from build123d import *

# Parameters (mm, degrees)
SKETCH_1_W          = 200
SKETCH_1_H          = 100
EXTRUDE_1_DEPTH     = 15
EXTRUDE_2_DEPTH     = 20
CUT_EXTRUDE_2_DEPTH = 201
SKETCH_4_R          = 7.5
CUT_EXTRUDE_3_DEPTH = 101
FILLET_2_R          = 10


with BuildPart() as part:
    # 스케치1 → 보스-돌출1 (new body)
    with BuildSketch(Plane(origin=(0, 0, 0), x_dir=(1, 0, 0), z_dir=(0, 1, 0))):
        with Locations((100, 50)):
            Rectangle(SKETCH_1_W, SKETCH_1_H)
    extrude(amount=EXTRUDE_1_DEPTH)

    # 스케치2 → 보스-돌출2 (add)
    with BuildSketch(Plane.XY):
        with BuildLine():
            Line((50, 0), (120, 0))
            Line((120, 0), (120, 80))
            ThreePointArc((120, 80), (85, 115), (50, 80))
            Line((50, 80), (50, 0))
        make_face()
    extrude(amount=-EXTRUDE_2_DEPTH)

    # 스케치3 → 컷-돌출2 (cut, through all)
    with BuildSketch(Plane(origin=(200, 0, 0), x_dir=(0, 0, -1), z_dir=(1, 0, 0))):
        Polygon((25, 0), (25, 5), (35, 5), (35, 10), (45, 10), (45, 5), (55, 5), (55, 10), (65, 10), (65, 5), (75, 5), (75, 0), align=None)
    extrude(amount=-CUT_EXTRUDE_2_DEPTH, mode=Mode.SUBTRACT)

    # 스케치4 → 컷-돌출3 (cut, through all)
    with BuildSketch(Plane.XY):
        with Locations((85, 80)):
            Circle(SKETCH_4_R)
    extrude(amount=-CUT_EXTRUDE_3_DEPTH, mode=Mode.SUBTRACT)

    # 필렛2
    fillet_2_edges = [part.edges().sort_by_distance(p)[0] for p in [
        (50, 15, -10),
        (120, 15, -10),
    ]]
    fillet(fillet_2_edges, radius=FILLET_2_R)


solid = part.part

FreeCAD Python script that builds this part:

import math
import FreeCAD as App
import Part
import Sketcher

V = App.Vector


def edges_at(feature, points):
    """Names of the edges that pass closest to the given points."""
    edges = feature.Shape.Edges
    near = lambda p: min(range(len(edges)), key=lambda i: edges[i].distToShape(Part.Vertex(*p))[0])
    return sorted({f"Edge{near(p) + 1}" for p in points})


def add_polygon(sketch, points):
    """Adds a closed chain of lines whose ends are joined by coincident constraints."""
    first, n = sketch.GeometryCount, len(points)
    for a, b in zip(points, points[1:] + points[:1]):
        sketch.addGeometry(Part.LineSegment(App.Vector(*a, 0), App.Vector(*b, 0)), False)
    for i in range(n):
        sketch.addConstraint(Sketcher.Constraint("Coincident", first + i, 2, first + (i + 1) % n, 1))

doc = App.newDocument("Part")
params = doc.addObject("Spreadsheet::Sheet", "Params")
for row, (alias, value) in enumerate([
    ("sketch1_width", "200 mm"),
    ("sketch1_height", "100 mm"),
    ("pad1_length", "15 mm"),
    ("sketch2_radius", "35 mm"),
    ("sketch2_height", "80 mm"),
    ("pad2_length", "20 mm"),
    ("sketch3_width", "5 mm"),
    ("sketch3_height", "50 mm"),
    ("sketch4_diameter", "15 mm"),
    ("fillet_radius", "10 mm"),
], start=1):
    params.set(f"A{row}", alias)
    params.set(f"B{row}", "=" + value)
    params.setAlias(f"B{row}", alias)

body = doc.addObject("PartDesign::Body", "Body")

sketch1 = body.newObject("Sketcher::SketchObject", "Sketch")
sketch1.AttachmentSupport = (doc.getObject("XZ_Plane"), [""])
sketch1.MapMode = "FlatFace"
add_polygon(sketch1, [(0, -100), (0, 0), (200, 0), (200, -100)])
sketch1.addConstraint([
    Sketcher.Constraint("Vertical", 0),
    Sketcher.Constraint("Horizontal", 1),
    Sketcher.Constraint("Vertical", 2),
    Sketcher.Constraint("Horizontal", 3),
    Sketcher.Constraint("Coincident", 0, 2, -1, 1),
    Sketcher.Constraint("DistanceX", 1, 1, 1, 2, 200.0),
    Sketcher.Constraint("DistanceY", 0, 1, 0, 2, 100.0),
])
sketch1.setExpression("Constraints[9]", "Params.sketch1_width")
sketch1.setExpression("Constraints[10]", "Params.sketch1_height")
pad1 = body.newObject("PartDesign::Pad", "Pad")
pad1.Profile = sketch1
pad1.setExpression("Length", "Params.pad1_length")
pad1.Reversed = True

sketch2 = body.newObject("Sketcher::SketchObject", "Sketch001")
sketch2.AttachmentSupport = (doc.getObject("XY_Plane"), [""])
sketch2.MapMode = "FlatFace"
sketch2.addGeometry([
    Part.LineSegment(V(50, 0, 0), V(120, 0, 0)),
    Part.LineSegment(V(120, 0, 0), V(120, 80, 0)),
    Part.ArcOfCircle(Part.Circle(V(85, 80, 0), V(0, 0, 1), 35), math.radians(0), math.radians(180)),
    Part.LineSegment(V(50, 80, 0), V(50, 0, 0)),
], False)
sketch2.addConstraint([
    Sketcher.Constraint("Coincident", 0, 2, 1, 1),
    Sketcher.Constraint("Tangent", 1, 2, 2, 1),
    Sketcher.Constraint("Tangent", 2, 2, 3, 1),
    Sketcher.Constraint("Coincident", 3, 2, 0, 1),
    Sketcher.Constraint("Horizontal", 0),
    Sketcher.Constraint("Vertical", 1),
    Sketcher.Constraint("Vertical", 3),
    Sketcher.Constraint("PointOnObject", 0, 2, -1),
    Sketcher.Constraint("Radius", 2, 35.0),
    Sketcher.Constraint("DistanceY", 1, 1, 1, 2, 80.0),
    Sketcher.Constraint("DistanceX", -1, 1, 2, 3, 85.0),
])
sketch2.setExpression("Constraints[8]", "Params.sketch2_radius")
sketch2.setExpression("Constraints[9]", "Params.sketch2_height")
pad2 = body.newObject("PartDesign::Pad", "Pad001")
pad2.Profile = sketch2
pad2.setExpression("Length", "Params.pad2_length")
pad2.Reversed = True

sketch3 = body.newObject("Sketcher::SketchObject", "Sketch002")
sketch3.AttachmentSupport = (doc.getObject("YZ_Plane"), [""])
sketch3.MapMode = "FlatFace"
sketch3.AttachmentOffset = App.Placement(V(0, 0, 200), App.Rotation())
add_polygon(sketch3, [(5, -25), (0, -25), (0, -75), (5, -75), (5, -65), (10, -65), (10, -55), (5, -55), (5, -45), (10, -45), (10, -35), (5, -35)])
sketch3.addConstraint([
    Sketcher.Constraint("Horizontal", 0),
    Sketcher.Constraint("Vertical", 1),
    Sketcher.Constraint("Horizontal", 2),
    Sketcher.Constraint("Vertical", 3),
    Sketcher.Constraint("Horizontal", 4),
    Sketcher.Constraint("Vertical", 5),
    Sketcher.Constraint("Horizontal", 6),
    Sketcher.Constraint("Vertical", 7),
    Sketcher.Constraint("Horizontal", 8),
    Sketcher.Constraint("Vertical", 9),
    Sketcher.Constraint("Horizontal", 10),
    Sketcher.Constraint("Vertical", 11),
    Sketcher.Constraint("PointOnObject", 0, 2, -2),
    Sketcher.Constraint("Vertical", 3, 2, 6, 2),
    Sketcher.Constraint("Vertical", 5, 2, 8, 2),
    Sketcher.Constraint("Vertical", 7, 2, 10, 2),
    Sketcher.Constraint("Equal", 2, 4),
    Sketcher.Constraint("Equal", 3, 5),
    Sketcher.Constraint("Equal", 5, 7),
    Sketcher.Constraint("Equal", 7, 9),
    Sketcher.Constraint("Equal", 9, 11),
    Sketcher.Constraint("DistanceX", 0, 2, 0, 1, 5.0),
    Sketcher.Constraint("DistanceY", 1, 2, 1, 1, 50.0),
    Sketcher.Constraint("DistanceY", 0, 2, -1, 1, 25.0),
])
sketch3.setExpression("Constraints[33]", "Params.sketch3_width")
sketch3.setExpression("Constraints[34]", "Params.sketch3_height")
pocket1 = body.newObject("PartDesign::Pocket", "Pocket")
pocket1.Profile = sketch3
pocket1.Type = "ThroughAll"

sketch4 = body.newObject("Sketcher::SketchObject", "Sketch003")
sketch4.AttachmentSupport = (doc.getObject("XY_Plane"), [""])
sketch4.MapMode = "FlatFace"
sketch4.addGeometry(Part.Circle(V(85, 80, 0), V(0, 0, 1), 8), False)
sketch4.addConstraint([
    Sketcher.Constraint("Diameter", 0, 15.0),
    Sketcher.Constraint("DistanceX", -1, 1, 0, 3, 85.0),
    Sketcher.Constraint("DistanceY", -1, 1, 0, 3, 80.0),
])
sketch4.setExpression("Constraints[0]", "Params.sketch4_diameter")
pocket2 = body.newObject("PartDesign::Pocket", "Pocket001")
pocket2.Profile = sketch4
pocket2.Type = "ThroughAll"
doc.recompute()

fillet = body.newObject("PartDesign::Fillet", "Fillet")
fillet.Base = (pocket2, edges_at(pocket2, [(50, 15, -10), (120, 15, -10)]))
fillet.setExpression("Radius", "Params.fillet_radius")

doc.recompute()
